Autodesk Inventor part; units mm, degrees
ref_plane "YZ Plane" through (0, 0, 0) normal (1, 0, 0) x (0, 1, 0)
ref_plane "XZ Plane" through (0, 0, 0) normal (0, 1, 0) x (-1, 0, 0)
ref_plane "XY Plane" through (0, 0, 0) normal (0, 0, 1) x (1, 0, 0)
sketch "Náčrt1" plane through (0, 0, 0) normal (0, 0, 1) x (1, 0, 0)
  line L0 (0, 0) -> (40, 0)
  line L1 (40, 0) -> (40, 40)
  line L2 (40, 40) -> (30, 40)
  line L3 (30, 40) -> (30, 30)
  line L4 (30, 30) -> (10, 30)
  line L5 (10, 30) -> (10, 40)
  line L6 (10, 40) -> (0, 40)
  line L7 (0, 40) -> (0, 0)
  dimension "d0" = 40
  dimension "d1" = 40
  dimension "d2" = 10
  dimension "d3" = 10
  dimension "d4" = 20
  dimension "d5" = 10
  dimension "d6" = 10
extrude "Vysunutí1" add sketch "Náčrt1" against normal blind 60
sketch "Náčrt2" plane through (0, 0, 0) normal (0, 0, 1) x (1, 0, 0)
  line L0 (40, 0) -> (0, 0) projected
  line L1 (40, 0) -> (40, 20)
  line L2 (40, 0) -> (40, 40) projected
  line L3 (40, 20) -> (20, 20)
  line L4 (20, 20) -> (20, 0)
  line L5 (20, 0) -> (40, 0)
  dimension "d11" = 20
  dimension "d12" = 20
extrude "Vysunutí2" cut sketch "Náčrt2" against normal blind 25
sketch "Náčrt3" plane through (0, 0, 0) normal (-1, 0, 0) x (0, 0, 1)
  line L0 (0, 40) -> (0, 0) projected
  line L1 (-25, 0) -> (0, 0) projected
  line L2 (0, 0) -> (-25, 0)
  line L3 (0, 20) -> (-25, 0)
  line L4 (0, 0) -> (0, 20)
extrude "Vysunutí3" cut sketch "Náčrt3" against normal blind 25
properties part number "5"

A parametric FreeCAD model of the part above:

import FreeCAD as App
import Part
import Sketcher

V = App.Vector
Q = App.Units.Quantity


def add_polygon(sketch, points):
    """Adds a closed chain of lines whose ends are joined by coincident constraints."""
    first, n = sketch.GeometryCount, len(points)
    for a, b in zip(points, points[1:] + points[:1]):
        sketch.addGeometry(Part.LineSegment(App.Vector(*a, 0), App.Vector(*b, 0)), False)
    for i in range(n):
        sketch.addConstraint(Sketcher.Constraint("Coincident", first + i, 2, first + (i + 1) % n, 1))

doc = App.newDocument("Part")
params = doc.addObject("Spreadsheet::Sheet", "Params")
for row, (alias, value) in enumerate([
    ("sketch1_width", "40 mm"),
    ("sketch1_width2", "10 mm"),
    ("pad1_length", "60 mm"),
    ("sketch2_width", "20 mm"),
    ("pocket1_length", "25 mm"),
    ("sketch3_width", "20 mm"),
    ("sketch3_height", "25 mm"),
    ("pocket2_length", "25 mm"),
], start=1):
    params.set(f"A{row}", alias)
    params.set(f"B{row}", "=" + value)
    params.setAlias(f"B{row}", alias)

body = doc.addObject("PartDesign::Body", "Body")

# Sketch on XY plane
sketch1 = body.newObject("Sketcher::SketchObject", "Sketch")
sketch1.AttachmentSupport = (doc.getObject("XY_Plane"), [""])
sketch1.MapMode = "FlatFace"
add_polygon(sketch1, [(0, 40), (0, 0), (40, 0), (40, 40), (30, 40), (30, 30), (10, 30), (10, 40)])  # lines 0-7
sketch1.addConstraint([
    Sketcher.Constraint("Vertical", 0),
    Sketcher.Constraint("Horizontal", 1),
    Sketcher.Constraint("Vertical", 2),
    Sketcher.Constraint("Horizontal", 3),
    Sketcher.Constraint("Vertical", 4),
    Sketcher.Constraint("Horizontal", 5),
    Sketcher.Constraint("Vertical", 6),
    Sketcher.Constraint("Horizontal", 7),
    Sketcher.Constraint("Coincident", 0, 2, -1, 1),
    Sketcher.Constraint("Horizontal", 3, 2, 6, 2),
    Sketcher.Constraint("Equal", 3, 7),
    Sketcher.Constraint("Equal", 1, 0),
    Sketcher.Constraint("Equal", 7, 4),
    Sketcher.Constraint("DistanceX", 1, 1, 1, 2, Q("40 mm")),
    Sketcher.Constraint("DistanceX", 3, 2, 3, 1, Q("10 mm")),
])
sketch1.setExpression("Constraints[21]", "Params.sketch1_width")
sketch1.setExpression("Constraints[22]", "Params.sketch1_width2")
pad1 = body.newObject("PartDesign::Pad", "Pad")
pad1.Profile = sketch1
pad1.setExpression("Length", "Params.pad1_length")
pad1.Reversed = True

# Sketch on XY plane
sketch2 = body.newObject("Sketcher::SketchObject", "Sketch001")
sketch2.AttachmentSupport = (doc.getObject("XY_Plane"), [""])
sketch2.MapMode = "FlatFace"
add_polygon(sketch2, [(20, 0), (40, 0), (40, 20), (20, 20)])  # lines 0-3
sketch2.addConstraint([
    Sketcher.Constraint("Horizontal", 0),
    Sketcher.Constraint("Vertical", 1),
    Sketcher.Constraint("Horizontal", 2),
    Sketcher.Constraint("Vertical", 3),
    Sketcher.Constraint("PointOnObject", 0, 2, -1),
    Sketcher.Constraint("Equal", 2, 1),
    Sketcher.Constraint("DistanceX", 0, 1, 0, 2, Q("20 mm")),
    Sketcher.Constraint("DistanceX", -1, 1, 2, 2, Q("20 mm")),
])
sketch2.setExpression("Constraints[10]", "Params.sketch2_width")
pocket1 = body.newObject("PartDesign::Pocket", "Pocket")
pocket1.Profile = sketch2
pocket1.setExpression("Length", "Params.pocket1_length")

# Sketch on YZ plane
sketch3 = body.newObject("Sketcher::SketchObject", "Sketch002")
sketch3.AttachmentSupport = (doc.getObject("YZ_Plane"), [""])
sketch3.MapMode = "FlatFace"
add_polygon(sketch3, [(0, 0), (20, 0), (0, -25)])  # lines 0-2
sketch3.addConstraint([
    Sketcher.Constraint("Horizontal", 0),
    Sketcher.Constraint("Vertical", 2),
    Sketcher.Constraint("Coincident", 2, 2, -1, 1),
    Sketcher.Constraint("DistanceX", 0, 1, 0, 2, Q("20 mm")),
    Sketcher.Constraint("DistanceY", 2, 1, 2, 2, Q("25 mm")),
])
sketch3.setExpression("Constraints[6]", "Params.sketch3_width")
sketch3.setExpression("Constraints[7]", "Params.sketch3_height")
pocket2 = body.newObject("PartDesign::Pocket", "Pocket001")
pocket2.Profile = sketch3
pocket2.setExpression("Length", "Params.pocket2_length")
pocket2.Reversed = True

doc.recompute()
